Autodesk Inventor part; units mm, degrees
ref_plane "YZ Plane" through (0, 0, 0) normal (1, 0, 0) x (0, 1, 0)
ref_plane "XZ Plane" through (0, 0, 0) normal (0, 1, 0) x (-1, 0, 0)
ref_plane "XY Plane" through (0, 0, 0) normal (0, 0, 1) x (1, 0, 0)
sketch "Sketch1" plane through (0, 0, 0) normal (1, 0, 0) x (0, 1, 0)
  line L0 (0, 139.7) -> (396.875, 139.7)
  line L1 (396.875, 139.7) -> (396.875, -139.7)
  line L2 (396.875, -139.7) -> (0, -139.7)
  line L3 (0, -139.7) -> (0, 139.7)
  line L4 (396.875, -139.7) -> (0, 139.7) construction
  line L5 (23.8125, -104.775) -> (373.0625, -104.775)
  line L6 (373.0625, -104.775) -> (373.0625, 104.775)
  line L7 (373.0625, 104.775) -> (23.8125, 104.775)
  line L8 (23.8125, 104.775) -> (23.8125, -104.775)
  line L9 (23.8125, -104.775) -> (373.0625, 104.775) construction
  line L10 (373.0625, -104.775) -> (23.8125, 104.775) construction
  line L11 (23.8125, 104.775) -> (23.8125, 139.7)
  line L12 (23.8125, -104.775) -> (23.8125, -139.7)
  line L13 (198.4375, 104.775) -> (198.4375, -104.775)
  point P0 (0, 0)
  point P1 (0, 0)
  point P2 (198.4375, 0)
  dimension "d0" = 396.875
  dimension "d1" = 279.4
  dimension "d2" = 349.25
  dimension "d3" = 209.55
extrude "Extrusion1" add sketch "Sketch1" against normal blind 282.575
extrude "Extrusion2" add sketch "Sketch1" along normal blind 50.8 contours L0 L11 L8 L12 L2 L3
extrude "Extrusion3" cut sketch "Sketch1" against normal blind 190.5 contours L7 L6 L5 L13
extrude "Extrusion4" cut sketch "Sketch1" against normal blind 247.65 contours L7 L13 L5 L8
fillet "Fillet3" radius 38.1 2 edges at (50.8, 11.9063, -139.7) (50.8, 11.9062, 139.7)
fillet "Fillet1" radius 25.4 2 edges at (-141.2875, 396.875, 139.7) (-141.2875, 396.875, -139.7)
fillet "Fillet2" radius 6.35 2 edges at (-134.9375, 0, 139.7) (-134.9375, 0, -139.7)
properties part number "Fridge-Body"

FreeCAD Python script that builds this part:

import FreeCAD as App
import Part
import Sketcher

V = App.Vector
Q = App.Units.Quantity


def edges_at(feature, points):
    """Names of the edges that pass closest to the given points."""
    edges = feature.Shape.Edges
    near = lambda p: min(range(len(edges)), key=lambda i: edges[i].distToShape(Part.Vertex(*p))[0])
    return sorted({f"Edge{near(p) + 1}" for p in points})


def add_polygon(sketch, points):
    """Adds a closed chain of lines whose ends are joined by coincident constraints."""
    first, n = sketch.GeometryCount, len(points)
    for a, b in zip(points, points[1:] + points[:1]):
        sketch.addGeometry(Part.LineSegment(App.Vector(*a, 0), App.Vector(*b, 0)), False)
    for i in range(n):
        sketch.addConstraint(Sketcher.Constraint("Coincident", first + i, 2, first + (i + 1) % n, 1))

doc = App.newDocument("Part")
body = doc.addObject("PartDesign::Body", "Body")

sketch1 = body.newObject("Sketcher::SketchObject", "Sketch")
sketch1.AttachmentSupport = (doc.getObject("YZ_Plane"), [""])
sketch1.MapMode = "FlatFace"
add_polygon(sketch1, [(0, 139.7), (0, -139.7), (396.875, -139.7), (396.875, 139.7)])
sketch1.addConstraint([
    Sketcher.Constraint("Vertical", 0),
    Sketcher.Constraint("Horizontal", 1),
    Sketcher.Constraint("Vertical", 2),
    Sketcher.Constraint("Horizontal", 3),
    Sketcher.Constraint("Symmetric", 0, 2, 3, 2, -1, 1),
    Sketcher.Constraint("DistanceY", 0, 2, 0, 1, Q("11 in")),
    Sketcher.Constraint("DistanceX", 1, 1, 1, 2, Q("15.625 in")),
])
pad1 = body.newObject("PartDesign::Pad", "Pad")
pad1.Profile = sketch1
pad1.Length = Q("11.125 in")
pad1.Reversed = True

sketch2 = body.newObject("Sketcher::SketchObject", "Sketch001")
sketch2.AttachmentSupport = (doc.getObject("YZ_Plane"), [""])
sketch2.MapMode = "FlatFace"
add_polygon(sketch2, [(23.8125, 139.7), (0, 139.7), (0, -139.7), (23.8125, -139.7)])
sketch2.addConstraint([
    Sketcher.Constraint("Horizontal", 0),
    Sketcher.Constraint("Vertical", 1),
    Sketcher.Constraint("Horizontal", 2),
    Sketcher.Constraint("Vertical", 3),
    Sketcher.Constraint("Symmetric", 0, 2, 1, 2, -1, 1),
    Sketcher.Constraint("DistanceY", 1, 2, 1, 1, Q("11 in")),
    Sketcher.Constraint("DistanceX", 0, 2, 0, 1, Q("0.9375 in")),
])
pad2 = body.newObject("PartDesign::Pad", "Pad001")
pad2.Profile = sketch2
pad2.Length = Q("2 in")

sketch3 = body.newObject("Sketcher::SketchObject", "Sketch002")
sketch3.AttachmentSupport = (doc.getObject("YZ_Plane"), [""])
sketch3.MapMode = "FlatFace"
add_polygon(sketch3, [(373.0625, 104.775), (198.4375, 104.775), (198.4375, -104.775), (373.0625, -104.775)])
sketch3.addConstraint([
    Sketcher.Constraint("Horizontal", 0),
    Sketcher.Constraint("Vertical", 1),
    Sketcher.Constraint("Horizontal", 2),
    Sketcher.Constraint("Vertical", 3),
    Sketcher.Constraint("DistanceY", 1, 2, 1, 1, Q("8.25 in")),
    Sketcher.Constraint("DistanceX", 0, 2, 0, 1, Q("6.875 in")),
    Sketcher.Constraint("DistanceX", -1, 1, 0, 2, Q("7.8125 in")),
    Sketcher.Constraint("DistanceY", -1, 1, 0, 2, Q("4.125 in")),
])
pocket1 = body.newObject("PartDesign::Pocket", "Pocket")
pocket1.Profile = sketch3
pocket1.Length = Q("7.5 in")

sketch4 = body.newObject("Sketcher::SketchObject", "Sketch003")
sketch4.AttachmentSupport = (doc.getObject("YZ_Plane"), [""])
sketch4.MapMode = "FlatFace"
add_polygon(sketch4, [(198.4375, 104.775), (23.8125, 104.775), (23.8125, -104.775), (198.4375, -104.775)])
sketch4.addConstraint([
    Sketcher.Constraint("Horizontal", 0),
    Sketcher.Constraint("Vertical", 1),
    Sketcher.Constraint("Horizontal", 2),
    Sketcher.Constraint("Vertical", 3),
    Sketcher.Constraint("DistanceY", 1, 2, 1, 1, Q("8.25 in")),
    Sketcher.Constraint("DistanceX", 0, 2, 0, 1, Q("6.875 in")),
    Sketcher.Constraint("DistanceX", -1, 1, 0, 2, Q("0.9375 in")),
    Sketcher.Constraint("DistanceY", -1, 1, 0, 2, Q("4.125 in")),
])
pocket2 = body.newObject("PartDesign::Pocket", "Pocket001")
pocket2.Profile = sketch4
pocket2.Length = Q("9.75 in")
doc.recompute()

fillet = body.newObject("PartDesign::Fillet", "Fillet")
fillet.Base = (pocket2, edges_at(pocket2, [(50.8, 11.906, -139.7), (50.8, 11.906, 139.7)]))
fillet.Radius = Q("1.5 in")
doc.recompute()

fillet2 = body.newObject("PartDesign::Fillet", "Fillet001")
fillet2.Base = (fillet, edges_at(fillet, [(-141.287, 396.875, 139.7), (-141.287, 396.875, -139.7)]))
fillet2.Radius = Q("1 in")
doc.recompute()

fillet3 = body.newObject("PartDesign::Fillet", "Fillet002")
fillet3.Base = (fillet2, edges_at(fillet2, [(-134.938, 0, 139.7), (-134.938, 0, -139.7)]))
fillet3.Radius = Q("0.25 in")

doc.recompute()
